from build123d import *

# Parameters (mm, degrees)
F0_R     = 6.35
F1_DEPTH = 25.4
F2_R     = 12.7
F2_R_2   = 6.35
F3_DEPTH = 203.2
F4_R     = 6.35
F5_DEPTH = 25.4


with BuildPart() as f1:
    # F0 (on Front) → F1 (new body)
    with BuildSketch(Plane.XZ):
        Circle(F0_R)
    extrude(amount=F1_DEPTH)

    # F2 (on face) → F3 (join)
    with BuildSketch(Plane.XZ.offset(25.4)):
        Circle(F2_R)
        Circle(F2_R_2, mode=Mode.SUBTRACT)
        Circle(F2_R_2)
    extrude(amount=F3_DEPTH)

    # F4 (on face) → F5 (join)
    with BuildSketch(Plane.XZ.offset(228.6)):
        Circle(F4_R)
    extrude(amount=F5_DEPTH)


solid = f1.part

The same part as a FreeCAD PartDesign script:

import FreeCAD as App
import Part
import Sketcher
Q = App.Units.Quantity

doc = App.newDocument("Part")
body = doc.addObject("PartDesign::Body", "Body")

# Sketch on XZ plane
sketch1 = body.newObject("Sketcher::SketchObject", "Sketch")
sketch1.AttachmentSupport = (doc.getObject("XZ_Plane"), [""])
sketch1.MapMode = "FlatFace"
sketch1.addGeometry(Part.Circle(App.Vector(0, 0, 0), App.Vector(0, 0, 1), 6), False)
sketch1.addConstraint([
    Sketcher.Constraint("Coincident", 0, 3, -1, 1),
    Sketcher.Constraint("Diameter", 0, Q("0.5 in")),
])
pad1 = body.newObject("PartDesign::Pad", "Pad")
pad1.Profile = sketch1
pad1.Length = Q("1 in")

# Sketch on XZ plane
sketch2 = body.newObject("Sketcher::SketchObject", "Sketch001")
sketch2.AttachmentSupport = (doc.getObject("XZ_Plane"), [""])
sketch2.MapMode = "FlatFace"
sketch2.AttachmentOffset = App.Placement(App.Vector(0, 0, 1 * 25.4), App.Rotation())
sketch2.addGeometry(Part.Circle(App.Vector(0, 0, 0), App.Vector(0, 0, 1), 13), False)
sketch2.addConstraint([
    Sketcher.Constraint("Coincident", 0, 3, -1, 1),
    Sketcher.Constraint("Diameter", 0, Q("1 in")),
])
pad2 = body.newObject("PartDesign::Pad", "Pad001")
pad2.Profile = sketch2
pad2.Length = Q("8 in")

# Sketch on XZ plane
sketch3 = body.newObject("Sketcher::SketchObject", "Sketch002")
sketch3.AttachmentSupport = (doc.getObject("XZ_Plane"), [""])
sketch3.MapMode = "FlatFace"
sketch3.AttachmentOffset = App.Placement(App.Vector(0, 0, 9 * 25.4), App.Rotation())
sketch3.addGeometry(Part.Circle(App.Vector(0, 0, 0), App.Vector(0, 0, 1), 6), False)
sketch3.addConstraint([
    Sketcher.Constraint("Coincident", 0, 3, -1, 1),
    Sketcher.Constraint("Diameter", 0, Q("0.5 in")),
])
pad3 = body.newObject("PartDesign::Pad", "Pad002")
pad3.Profile = sketch3
pad3.Length = Q("1 in")

doc.recompute()
